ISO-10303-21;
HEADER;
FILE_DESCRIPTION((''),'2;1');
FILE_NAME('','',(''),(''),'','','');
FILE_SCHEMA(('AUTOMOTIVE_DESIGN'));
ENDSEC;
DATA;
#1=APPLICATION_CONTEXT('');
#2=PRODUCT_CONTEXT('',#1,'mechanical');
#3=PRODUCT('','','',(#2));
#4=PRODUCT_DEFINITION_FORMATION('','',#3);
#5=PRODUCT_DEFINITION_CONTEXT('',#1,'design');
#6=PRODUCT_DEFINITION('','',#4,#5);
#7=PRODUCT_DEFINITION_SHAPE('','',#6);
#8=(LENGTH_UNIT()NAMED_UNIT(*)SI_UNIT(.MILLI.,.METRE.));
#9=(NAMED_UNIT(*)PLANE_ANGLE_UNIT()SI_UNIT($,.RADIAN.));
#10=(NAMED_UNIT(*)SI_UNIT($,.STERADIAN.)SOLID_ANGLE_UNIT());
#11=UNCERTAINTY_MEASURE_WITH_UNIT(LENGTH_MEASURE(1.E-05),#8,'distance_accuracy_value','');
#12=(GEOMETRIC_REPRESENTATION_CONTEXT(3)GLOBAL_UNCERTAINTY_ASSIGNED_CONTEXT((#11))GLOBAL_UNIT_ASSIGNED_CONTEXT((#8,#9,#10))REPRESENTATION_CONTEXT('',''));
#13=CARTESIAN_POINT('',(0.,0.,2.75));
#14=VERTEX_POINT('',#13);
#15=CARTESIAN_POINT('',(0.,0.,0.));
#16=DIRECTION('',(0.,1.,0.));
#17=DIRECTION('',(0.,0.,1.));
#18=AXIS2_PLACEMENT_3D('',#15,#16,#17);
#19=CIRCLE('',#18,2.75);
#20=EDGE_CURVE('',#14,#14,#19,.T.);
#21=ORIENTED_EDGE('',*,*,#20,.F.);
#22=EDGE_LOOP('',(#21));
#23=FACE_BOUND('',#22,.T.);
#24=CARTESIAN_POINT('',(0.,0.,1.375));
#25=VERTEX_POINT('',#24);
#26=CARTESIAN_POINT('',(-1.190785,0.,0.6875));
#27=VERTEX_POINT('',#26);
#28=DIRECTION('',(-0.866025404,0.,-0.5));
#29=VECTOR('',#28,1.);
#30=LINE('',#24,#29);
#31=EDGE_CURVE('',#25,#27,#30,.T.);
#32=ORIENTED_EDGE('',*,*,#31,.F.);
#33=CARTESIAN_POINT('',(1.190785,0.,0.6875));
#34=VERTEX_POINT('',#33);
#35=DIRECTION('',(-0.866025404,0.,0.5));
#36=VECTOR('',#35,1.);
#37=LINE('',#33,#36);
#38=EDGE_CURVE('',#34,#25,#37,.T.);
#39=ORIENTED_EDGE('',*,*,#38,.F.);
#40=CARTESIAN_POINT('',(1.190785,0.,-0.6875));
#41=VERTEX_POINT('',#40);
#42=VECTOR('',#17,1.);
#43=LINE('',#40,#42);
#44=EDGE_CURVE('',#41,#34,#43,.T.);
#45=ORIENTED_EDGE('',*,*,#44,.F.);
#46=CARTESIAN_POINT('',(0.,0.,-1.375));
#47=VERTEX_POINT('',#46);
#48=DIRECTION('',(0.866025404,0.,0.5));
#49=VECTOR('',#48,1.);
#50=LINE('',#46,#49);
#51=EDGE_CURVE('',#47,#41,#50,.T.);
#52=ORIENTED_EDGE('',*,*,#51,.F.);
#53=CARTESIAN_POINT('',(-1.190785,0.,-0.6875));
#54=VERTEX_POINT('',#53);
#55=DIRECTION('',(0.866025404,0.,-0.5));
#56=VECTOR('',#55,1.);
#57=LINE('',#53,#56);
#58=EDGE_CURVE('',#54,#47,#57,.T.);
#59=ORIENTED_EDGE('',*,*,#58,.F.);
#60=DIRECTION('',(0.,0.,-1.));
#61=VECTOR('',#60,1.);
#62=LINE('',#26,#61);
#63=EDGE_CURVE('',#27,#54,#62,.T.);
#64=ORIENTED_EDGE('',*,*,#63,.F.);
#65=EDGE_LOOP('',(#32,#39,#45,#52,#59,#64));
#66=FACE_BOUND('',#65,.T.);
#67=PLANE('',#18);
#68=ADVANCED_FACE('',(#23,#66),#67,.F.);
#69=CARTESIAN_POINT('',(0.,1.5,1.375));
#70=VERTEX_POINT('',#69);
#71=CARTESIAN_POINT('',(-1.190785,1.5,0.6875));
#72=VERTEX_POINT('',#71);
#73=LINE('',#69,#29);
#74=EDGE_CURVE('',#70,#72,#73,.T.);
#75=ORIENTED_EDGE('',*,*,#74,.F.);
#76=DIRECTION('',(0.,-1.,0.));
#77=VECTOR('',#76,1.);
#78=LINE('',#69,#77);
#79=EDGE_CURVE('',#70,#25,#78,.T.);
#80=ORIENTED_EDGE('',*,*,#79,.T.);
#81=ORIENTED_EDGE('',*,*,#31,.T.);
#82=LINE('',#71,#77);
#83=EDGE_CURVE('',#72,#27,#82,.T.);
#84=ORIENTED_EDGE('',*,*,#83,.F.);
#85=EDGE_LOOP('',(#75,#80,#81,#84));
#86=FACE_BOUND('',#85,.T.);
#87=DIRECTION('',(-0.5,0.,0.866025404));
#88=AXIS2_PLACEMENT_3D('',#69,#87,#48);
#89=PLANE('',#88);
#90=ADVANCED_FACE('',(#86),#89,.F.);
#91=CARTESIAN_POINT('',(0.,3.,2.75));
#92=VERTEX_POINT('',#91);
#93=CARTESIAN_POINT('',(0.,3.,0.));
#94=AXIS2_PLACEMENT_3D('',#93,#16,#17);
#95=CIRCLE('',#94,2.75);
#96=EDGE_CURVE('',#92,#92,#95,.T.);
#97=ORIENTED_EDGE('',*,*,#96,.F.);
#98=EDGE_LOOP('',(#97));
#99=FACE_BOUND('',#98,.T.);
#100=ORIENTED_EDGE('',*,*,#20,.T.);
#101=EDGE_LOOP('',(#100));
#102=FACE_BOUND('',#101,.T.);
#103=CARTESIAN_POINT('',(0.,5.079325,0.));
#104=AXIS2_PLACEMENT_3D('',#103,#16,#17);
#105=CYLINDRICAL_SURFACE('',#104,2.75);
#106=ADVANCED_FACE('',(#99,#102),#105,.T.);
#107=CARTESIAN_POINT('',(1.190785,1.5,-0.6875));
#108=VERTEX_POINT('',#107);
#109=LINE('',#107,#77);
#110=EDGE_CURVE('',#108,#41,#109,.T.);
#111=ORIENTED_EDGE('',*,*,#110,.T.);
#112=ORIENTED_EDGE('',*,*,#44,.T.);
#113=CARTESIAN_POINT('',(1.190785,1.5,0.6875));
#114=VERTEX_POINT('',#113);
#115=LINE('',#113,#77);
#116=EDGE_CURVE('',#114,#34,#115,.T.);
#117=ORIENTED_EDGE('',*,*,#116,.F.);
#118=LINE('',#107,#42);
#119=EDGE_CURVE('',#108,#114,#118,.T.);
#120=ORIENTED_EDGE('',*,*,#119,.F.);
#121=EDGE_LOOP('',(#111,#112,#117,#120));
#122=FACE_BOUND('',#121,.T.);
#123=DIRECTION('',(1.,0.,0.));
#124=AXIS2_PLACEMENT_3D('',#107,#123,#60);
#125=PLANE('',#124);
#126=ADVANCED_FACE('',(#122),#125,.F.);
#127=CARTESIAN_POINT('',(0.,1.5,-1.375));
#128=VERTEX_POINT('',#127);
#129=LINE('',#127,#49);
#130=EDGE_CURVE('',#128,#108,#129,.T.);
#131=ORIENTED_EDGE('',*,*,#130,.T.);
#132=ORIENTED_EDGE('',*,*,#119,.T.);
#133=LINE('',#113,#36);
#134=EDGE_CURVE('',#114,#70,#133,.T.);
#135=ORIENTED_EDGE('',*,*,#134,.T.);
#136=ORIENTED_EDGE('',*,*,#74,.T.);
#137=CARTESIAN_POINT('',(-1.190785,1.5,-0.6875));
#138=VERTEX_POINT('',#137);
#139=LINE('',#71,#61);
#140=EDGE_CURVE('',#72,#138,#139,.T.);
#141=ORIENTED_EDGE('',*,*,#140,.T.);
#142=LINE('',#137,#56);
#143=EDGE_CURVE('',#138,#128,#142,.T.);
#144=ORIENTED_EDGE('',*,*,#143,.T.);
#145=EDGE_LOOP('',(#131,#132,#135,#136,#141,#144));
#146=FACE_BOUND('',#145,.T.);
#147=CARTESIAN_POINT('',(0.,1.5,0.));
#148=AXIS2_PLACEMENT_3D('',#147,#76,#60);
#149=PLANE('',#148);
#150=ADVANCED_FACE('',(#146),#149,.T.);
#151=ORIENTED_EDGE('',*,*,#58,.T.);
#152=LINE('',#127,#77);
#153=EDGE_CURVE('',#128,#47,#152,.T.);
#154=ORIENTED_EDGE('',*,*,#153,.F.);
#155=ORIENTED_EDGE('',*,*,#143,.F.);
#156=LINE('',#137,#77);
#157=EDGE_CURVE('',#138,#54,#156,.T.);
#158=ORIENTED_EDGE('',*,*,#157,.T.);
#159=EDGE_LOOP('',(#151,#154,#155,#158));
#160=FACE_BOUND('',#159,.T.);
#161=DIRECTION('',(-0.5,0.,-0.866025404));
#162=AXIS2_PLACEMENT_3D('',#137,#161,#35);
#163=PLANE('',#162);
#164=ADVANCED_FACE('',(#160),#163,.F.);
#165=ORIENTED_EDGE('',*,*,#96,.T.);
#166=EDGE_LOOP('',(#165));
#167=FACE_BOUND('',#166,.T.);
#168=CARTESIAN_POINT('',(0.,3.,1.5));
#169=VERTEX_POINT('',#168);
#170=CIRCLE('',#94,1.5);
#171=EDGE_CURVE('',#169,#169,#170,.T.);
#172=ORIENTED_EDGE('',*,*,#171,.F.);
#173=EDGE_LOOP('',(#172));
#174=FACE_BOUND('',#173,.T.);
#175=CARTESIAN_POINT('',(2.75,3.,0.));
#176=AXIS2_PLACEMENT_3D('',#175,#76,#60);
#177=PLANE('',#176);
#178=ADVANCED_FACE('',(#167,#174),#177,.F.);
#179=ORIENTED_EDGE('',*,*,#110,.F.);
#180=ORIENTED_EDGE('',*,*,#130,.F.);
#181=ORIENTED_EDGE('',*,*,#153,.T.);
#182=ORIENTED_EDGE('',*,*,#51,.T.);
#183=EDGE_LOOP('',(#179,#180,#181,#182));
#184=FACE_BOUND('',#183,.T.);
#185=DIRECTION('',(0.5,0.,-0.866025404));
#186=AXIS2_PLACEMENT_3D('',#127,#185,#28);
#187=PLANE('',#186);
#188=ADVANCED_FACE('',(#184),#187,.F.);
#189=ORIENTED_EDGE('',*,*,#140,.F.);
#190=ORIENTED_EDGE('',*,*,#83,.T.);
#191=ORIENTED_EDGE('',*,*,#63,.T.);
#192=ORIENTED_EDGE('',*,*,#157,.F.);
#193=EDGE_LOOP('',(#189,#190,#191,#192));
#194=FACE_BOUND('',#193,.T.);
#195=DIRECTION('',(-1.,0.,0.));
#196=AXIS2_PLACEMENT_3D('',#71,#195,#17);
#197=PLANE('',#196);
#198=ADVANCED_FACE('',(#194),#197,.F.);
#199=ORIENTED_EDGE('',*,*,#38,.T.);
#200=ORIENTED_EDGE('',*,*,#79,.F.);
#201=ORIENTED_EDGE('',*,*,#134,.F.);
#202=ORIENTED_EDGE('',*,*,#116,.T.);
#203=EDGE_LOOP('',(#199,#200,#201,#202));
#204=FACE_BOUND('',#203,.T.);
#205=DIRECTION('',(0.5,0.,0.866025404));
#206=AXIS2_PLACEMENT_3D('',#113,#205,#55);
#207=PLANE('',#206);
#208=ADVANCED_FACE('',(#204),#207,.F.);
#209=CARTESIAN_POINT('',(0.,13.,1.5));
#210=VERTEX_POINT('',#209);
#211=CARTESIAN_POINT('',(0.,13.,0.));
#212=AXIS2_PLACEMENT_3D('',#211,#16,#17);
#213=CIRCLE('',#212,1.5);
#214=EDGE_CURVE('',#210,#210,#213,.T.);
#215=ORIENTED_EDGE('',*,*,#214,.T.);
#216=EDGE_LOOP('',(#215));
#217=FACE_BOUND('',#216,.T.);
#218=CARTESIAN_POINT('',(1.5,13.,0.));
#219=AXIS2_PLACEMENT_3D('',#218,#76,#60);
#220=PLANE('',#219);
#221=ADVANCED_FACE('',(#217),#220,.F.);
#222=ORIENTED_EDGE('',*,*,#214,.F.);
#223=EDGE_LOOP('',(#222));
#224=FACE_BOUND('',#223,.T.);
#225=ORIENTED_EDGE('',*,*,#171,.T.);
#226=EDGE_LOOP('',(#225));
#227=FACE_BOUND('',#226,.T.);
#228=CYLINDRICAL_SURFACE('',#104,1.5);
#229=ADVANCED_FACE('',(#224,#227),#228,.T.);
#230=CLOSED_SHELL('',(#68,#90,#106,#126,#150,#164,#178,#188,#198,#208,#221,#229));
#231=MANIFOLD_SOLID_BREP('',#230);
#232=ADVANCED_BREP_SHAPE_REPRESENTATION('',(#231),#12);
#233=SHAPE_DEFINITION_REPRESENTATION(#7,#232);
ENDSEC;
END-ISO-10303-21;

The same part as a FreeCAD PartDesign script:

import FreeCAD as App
import Part
import Sketcher

V = App.Vector
Q = App.Units.Quantity


def add_polygon(sketch, points):
    """Adds a closed chain of lines whose ends are joined by coincident constraints."""
    first, n = sketch.GeometryCount, len(points)
    for a, b in zip(points, points[1:] + points[:1]):
        sketch.addGeometry(Part.LineSegment(App.Vector(*a, 0), App.Vector(*b, 0)), False)
    for i in range(n):
        sketch.addConstraint(Sketcher.Constraint("Coincident", first + i, 2, first + (i + 1) % n, 1))

doc = App.newDocument("Part")
body = doc.addObject("PartDesign::Body", "Body")

sketch1 = doc.addObject("Sketcher::SketchObject", "Sketch")
body.addObject(sketch1)
sketch1.AttachmentSupport = (doc.XY_Plane, [""])
sketch1.MapMode = "FlatFace"
add_polygon(sketch1, [(0, 0), (2.8, 0), (2.8, 3), (1.5, 3), (1.5, 13), (0, 13)])
sketch1.addConstraint([
    Sketcher.Constraint("Horizontal", 0),
    Sketcher.Constraint("Vertical", 1),
    Sketcher.Constraint("Horizontal", 2),
    Sketcher.Constraint("Vertical", 3),
    Sketcher.Constraint("Horizontal", 4),
    Sketcher.Constraint("Vertical", 5),
    Sketcher.Constraint("Coincident", 5, 2, -1, 1),
    Sketcher.Constraint("DistanceY", 1, 1, 1, 2, Q("3 mm")),
    Sketcher.Constraint("DistanceY", 3, 1, 3, 2, Q("10 mm")),
    Sketcher.Constraint("DistanceX", 4, 2, 4, 1, Q("1.5 mm")),
    Sketcher.Constraint("DistanceX", 0, 1, 0, 2, Q("2.75 mm")),
])
revolution = doc.addObject("PartDesign::Revolution", "Revolution")
body.addObject(revolution)
revolution.Profile = sketch1
revolution.ReferenceAxis = (sketch1, ["V_Axis"])
revolution.Angle = 360

sketch2 = doc.addObject("Sketcher::SketchObject", "Sketch001")
body.addObject(sketch2)
sketch2.AttachmentSupport = (doc.XZ_Plane, [""])
sketch2.MapMode = "FlatFace"
add_polygon(sketch2, [(0, -1.4), (1.2, -0.7), (1.2, 0.7), (0, 1.4), (-1.2, 0.7), (-1.2, -0.7)])
sketch2.addConstraint([
    Sketcher.Constraint("Vertical", 1),
    Sketcher.Constraint("Vertical", 4),
    Sketcher.Constraint("Symmetric", 0, 2, 3, 2, -1, 1),
    Sketcher.Constraint("Symmetric", 2, 2, 5, 2, -1, 1),
    Sketcher.Constraint("PointOnObject", 2, 2, -2),
    Sketcher.Constraint("Parallel", 2, 5),
    Sketcher.Constraint("Horizontal", 1, 2, 3, 2),
    Sketcher.Constraint("Angle", 0, Q("30 deg")),
    Sketcher.Constraint("DistanceY", 1, 1, 1, 2, Q("1.375 mm")),
    Sketcher.Constraint("DistanceY", 5, 2, 2, 2, Q("2.75 mm")),
])
pocket1 = doc.addObject("PartDesign::Pocket", "Pocket")
body.addObject(pocket1)
pocket1.Profile = sketch2
pocket1.Length = 1.5

doc.recompute()
